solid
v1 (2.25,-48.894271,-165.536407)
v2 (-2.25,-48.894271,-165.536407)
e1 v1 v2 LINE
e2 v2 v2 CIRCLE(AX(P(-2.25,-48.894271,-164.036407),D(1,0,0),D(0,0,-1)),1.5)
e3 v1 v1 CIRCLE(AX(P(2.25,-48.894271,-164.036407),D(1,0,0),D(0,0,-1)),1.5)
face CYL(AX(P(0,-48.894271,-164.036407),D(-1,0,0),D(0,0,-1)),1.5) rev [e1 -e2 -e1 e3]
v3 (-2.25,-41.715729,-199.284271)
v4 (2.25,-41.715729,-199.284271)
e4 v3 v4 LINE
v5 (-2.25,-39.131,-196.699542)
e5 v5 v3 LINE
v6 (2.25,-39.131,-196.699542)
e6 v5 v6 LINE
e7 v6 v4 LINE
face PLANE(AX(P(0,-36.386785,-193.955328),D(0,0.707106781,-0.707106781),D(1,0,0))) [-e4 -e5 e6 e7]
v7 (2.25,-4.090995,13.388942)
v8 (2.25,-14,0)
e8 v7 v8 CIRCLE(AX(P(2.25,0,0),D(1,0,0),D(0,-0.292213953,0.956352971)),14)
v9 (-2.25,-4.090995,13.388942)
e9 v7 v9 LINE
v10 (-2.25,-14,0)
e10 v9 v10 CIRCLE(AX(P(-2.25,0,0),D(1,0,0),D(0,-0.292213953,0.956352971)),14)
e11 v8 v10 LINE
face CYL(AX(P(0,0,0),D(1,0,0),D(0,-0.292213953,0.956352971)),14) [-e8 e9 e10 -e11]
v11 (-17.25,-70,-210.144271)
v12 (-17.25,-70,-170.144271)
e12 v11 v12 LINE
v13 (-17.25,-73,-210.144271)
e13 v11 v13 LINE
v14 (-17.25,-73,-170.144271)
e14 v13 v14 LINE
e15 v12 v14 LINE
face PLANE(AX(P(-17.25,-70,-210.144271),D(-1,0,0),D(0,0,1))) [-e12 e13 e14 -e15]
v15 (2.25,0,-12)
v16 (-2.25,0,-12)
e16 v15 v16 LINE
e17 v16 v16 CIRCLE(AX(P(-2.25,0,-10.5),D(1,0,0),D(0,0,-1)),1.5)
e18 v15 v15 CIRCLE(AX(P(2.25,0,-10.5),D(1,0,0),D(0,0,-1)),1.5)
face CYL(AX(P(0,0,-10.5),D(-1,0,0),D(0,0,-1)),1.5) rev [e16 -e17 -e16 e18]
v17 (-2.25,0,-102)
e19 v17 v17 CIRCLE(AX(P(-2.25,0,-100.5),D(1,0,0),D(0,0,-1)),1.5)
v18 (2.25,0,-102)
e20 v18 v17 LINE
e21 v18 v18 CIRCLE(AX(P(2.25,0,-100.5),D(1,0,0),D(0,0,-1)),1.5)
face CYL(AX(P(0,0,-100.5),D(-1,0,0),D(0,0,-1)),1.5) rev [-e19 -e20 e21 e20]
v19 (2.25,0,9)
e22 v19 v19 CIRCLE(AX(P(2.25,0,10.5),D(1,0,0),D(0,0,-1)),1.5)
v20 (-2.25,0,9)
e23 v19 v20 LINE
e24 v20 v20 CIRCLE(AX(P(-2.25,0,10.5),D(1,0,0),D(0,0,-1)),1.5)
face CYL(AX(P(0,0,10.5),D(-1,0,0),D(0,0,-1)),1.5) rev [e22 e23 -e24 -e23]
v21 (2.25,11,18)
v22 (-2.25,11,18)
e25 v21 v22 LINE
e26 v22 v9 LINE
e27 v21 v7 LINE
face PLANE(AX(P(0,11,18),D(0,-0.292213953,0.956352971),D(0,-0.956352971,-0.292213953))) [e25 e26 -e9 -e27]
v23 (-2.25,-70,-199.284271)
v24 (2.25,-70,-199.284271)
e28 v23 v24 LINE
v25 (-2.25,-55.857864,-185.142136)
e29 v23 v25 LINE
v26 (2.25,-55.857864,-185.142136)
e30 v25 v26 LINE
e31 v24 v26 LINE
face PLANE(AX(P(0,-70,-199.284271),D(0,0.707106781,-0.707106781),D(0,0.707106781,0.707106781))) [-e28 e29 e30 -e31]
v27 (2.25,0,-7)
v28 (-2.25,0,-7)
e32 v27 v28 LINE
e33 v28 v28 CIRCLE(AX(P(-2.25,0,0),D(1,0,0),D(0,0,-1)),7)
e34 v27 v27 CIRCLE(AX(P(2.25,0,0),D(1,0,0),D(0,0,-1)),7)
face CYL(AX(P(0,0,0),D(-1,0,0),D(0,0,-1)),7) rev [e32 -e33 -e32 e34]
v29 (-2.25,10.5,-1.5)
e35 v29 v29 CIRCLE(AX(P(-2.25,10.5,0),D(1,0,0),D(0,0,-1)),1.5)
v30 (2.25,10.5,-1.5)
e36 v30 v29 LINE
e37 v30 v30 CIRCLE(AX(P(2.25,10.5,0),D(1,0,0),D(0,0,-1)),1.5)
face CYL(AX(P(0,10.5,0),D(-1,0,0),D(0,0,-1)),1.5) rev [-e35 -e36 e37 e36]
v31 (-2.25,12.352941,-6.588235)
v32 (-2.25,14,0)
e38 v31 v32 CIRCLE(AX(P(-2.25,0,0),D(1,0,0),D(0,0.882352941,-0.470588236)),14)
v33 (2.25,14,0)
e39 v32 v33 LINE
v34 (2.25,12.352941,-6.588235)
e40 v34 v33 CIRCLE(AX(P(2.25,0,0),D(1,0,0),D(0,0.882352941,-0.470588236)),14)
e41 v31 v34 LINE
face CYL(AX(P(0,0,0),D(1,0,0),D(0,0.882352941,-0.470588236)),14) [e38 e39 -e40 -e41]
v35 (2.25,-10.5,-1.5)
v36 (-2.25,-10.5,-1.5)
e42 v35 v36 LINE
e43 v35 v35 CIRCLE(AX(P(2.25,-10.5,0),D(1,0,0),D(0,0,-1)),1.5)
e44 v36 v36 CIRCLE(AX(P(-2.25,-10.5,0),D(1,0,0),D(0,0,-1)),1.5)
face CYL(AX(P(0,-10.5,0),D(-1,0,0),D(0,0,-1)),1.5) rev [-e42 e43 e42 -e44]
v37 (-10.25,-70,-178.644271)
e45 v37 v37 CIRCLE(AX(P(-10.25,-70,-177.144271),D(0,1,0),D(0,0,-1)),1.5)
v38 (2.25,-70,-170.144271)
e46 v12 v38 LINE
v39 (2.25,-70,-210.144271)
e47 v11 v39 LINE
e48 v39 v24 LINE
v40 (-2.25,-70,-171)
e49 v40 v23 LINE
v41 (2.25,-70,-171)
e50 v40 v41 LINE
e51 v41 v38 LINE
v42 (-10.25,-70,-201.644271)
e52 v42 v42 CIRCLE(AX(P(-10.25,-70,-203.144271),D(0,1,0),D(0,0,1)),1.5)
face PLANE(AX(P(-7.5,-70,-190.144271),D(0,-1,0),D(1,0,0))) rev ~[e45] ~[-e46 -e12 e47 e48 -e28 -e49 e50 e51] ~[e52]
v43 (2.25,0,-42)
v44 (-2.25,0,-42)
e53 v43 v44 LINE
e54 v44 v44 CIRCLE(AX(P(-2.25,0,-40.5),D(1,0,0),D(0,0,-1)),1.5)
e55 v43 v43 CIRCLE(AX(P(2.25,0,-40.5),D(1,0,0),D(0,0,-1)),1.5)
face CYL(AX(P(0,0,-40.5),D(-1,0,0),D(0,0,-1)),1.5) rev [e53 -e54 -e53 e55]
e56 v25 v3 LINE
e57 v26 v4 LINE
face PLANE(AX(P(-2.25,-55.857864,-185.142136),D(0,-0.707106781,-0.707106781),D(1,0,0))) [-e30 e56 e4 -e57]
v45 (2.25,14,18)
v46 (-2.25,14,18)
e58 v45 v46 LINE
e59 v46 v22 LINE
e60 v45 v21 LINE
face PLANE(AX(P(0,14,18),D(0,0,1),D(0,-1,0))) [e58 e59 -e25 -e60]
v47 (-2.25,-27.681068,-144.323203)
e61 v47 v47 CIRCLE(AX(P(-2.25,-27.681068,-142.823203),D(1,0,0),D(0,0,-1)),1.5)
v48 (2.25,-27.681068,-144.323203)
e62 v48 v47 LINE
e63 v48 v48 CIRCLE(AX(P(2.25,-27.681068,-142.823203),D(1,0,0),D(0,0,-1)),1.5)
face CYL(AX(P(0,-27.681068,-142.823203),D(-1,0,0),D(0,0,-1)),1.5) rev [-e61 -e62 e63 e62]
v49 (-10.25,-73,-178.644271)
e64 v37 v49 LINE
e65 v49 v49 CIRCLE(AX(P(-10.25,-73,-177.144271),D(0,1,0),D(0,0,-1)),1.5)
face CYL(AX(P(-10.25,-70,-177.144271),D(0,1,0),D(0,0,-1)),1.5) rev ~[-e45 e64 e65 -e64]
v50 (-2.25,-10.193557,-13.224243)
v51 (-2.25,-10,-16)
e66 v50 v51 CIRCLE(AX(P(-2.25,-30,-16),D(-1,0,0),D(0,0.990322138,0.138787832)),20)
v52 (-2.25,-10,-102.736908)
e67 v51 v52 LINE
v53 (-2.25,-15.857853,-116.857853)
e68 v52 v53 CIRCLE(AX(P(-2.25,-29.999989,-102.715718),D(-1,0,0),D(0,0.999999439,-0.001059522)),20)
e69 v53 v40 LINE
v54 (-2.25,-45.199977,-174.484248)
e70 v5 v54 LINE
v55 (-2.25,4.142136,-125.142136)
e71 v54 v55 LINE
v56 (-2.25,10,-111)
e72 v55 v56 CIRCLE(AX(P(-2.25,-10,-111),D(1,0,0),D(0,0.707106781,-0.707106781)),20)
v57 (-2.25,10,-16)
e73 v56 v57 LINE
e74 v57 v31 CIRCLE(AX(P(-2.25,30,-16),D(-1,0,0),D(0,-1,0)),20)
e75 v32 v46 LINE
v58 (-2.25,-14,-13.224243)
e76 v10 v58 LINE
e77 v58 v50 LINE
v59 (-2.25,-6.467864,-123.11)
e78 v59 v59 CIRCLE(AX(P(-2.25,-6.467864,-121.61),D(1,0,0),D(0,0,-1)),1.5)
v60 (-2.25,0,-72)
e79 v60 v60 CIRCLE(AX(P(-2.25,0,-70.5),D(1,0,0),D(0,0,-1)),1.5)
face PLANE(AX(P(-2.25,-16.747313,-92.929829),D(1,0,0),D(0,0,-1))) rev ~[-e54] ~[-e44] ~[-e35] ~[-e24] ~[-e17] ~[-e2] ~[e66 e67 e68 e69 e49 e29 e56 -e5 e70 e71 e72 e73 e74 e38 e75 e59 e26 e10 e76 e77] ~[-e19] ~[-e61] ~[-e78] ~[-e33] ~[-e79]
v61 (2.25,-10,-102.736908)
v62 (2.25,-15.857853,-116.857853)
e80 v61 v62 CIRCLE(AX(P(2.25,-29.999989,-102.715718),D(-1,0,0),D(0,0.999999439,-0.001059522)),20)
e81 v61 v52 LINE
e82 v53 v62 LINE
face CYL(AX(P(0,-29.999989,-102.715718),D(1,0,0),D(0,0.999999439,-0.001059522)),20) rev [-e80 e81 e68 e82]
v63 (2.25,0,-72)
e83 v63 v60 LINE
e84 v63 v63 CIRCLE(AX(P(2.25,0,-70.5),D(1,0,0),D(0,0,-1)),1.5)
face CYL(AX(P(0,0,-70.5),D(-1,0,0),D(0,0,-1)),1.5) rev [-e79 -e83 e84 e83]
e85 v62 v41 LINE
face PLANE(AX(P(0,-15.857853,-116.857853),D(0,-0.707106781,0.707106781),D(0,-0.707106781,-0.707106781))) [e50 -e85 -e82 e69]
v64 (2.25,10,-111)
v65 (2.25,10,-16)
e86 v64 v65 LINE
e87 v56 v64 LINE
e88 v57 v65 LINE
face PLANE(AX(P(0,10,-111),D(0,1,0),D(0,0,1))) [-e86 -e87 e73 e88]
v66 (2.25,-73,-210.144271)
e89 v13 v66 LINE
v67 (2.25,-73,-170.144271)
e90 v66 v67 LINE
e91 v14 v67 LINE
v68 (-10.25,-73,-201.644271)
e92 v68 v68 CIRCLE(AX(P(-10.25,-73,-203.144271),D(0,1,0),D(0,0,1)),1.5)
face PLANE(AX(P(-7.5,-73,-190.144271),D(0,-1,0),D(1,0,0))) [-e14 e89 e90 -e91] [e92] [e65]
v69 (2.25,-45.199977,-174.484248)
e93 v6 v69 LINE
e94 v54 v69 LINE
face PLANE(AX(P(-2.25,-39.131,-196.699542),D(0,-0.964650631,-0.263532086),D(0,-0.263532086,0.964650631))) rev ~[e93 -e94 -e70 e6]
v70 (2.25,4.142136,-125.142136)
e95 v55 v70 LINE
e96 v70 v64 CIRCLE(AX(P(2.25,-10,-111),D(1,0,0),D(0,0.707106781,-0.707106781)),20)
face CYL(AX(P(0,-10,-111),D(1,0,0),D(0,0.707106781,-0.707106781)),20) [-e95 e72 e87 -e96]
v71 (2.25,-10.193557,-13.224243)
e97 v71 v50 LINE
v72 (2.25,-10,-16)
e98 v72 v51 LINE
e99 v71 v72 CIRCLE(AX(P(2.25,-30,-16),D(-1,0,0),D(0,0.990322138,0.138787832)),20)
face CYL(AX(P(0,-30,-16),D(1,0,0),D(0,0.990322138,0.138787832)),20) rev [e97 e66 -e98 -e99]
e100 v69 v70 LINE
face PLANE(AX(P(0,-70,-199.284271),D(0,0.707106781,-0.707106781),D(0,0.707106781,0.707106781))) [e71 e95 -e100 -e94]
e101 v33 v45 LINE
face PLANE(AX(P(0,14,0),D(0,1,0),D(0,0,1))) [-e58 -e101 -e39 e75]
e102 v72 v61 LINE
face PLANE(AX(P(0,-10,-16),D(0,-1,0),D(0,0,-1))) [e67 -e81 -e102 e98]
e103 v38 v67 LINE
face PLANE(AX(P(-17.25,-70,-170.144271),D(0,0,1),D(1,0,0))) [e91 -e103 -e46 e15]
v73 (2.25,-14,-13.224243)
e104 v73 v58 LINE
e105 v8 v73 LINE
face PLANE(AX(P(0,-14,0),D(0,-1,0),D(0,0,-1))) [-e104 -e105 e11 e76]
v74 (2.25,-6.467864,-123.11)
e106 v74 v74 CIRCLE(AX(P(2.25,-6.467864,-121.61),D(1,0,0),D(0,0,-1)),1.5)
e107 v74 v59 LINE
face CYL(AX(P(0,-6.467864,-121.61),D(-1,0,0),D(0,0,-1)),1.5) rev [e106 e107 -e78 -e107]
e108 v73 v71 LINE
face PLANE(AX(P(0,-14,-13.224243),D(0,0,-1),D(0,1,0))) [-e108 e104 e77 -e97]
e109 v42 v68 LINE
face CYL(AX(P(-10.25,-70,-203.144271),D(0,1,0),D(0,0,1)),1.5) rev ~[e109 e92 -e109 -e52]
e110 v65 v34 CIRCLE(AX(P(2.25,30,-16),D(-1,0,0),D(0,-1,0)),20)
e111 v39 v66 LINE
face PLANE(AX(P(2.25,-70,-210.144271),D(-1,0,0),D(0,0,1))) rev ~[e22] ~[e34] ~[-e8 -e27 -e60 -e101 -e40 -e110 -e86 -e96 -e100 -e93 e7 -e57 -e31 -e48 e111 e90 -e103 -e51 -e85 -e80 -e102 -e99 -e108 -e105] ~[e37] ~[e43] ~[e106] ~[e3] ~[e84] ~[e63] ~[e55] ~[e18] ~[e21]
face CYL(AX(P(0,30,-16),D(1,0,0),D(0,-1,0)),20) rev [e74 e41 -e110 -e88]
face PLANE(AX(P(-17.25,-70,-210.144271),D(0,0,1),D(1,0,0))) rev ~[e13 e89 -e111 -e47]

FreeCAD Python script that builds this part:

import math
import FreeCAD as App
import Part
import Sketcher

V = App.Vector
Q = App.Units.Quantity

doc = App.newDocument("Part")
params = doc.addObject("Spreadsheet::Sheet", "Params")
for row, (alias, value) in enumerate([
    ("sketch1_diameter", "3 mm"),
    ("sketch1_diameter2", "14 mm"),
    ("sketch1_radius", "20 mm"),
    ("sketch1_radius2", "14 mm"),
    ("sketch1_width", "3 mm"),
    ("pad1_length", "4.5 mm"),
    ("sketch2_height", "40 mm"),
    ("sketch2_width", "19.5 mm"),
    ("pad2_length", "3 mm"),
    ("sketch3_diameter", "3 mm"),
    ("sketch4_width", "4.5 mm"),
    ("pad3_length", "20 mm"),
    ("sketch5_length", "20 mm"),
    ("pocket2_length", "10 mm"),
], start=1):
    params.set(f"A{row}", alias)
    params.set(f"B{row}", "=" + value)
    params.setAlias(f"B{row}", alias)

body = doc.addObject("PartDesign::Body", "Body")

sketch1 = body.newObject("Sketcher::SketchObject", "Sketch")
sketch1.AttachmentSupport = (doc.getObject("YZ_Plane"), [""])
sketch1.MapMode = "FlatFace"
sketch1.addGeometry([
    Part.ArcOfCircle(Part.Circle(V(-30, -102.7, 0), V(0, 0, 1), 20), math.radians(-45), math.radians(0)),
    Part.LineSegment(V(-15.9, -116.9, 0), V(-70, -171, 0)),
    Part.LineSegment(V(-70, -171, 0), V(-70, -199.3, 0)),
    Part.LineSegment(V(-70, -199.3, 0), V(4.1, -125.1, 0)),
    Part.ArcOfCircle(Part.Circle(V(-10, -111, 0), V(0, 0, 1), 20), math.radians(-45), math.radians(0)),
    Part.LineSegment(V(10, -111, 0), V(10, -16, 0)),
    Part.ArcOfCircle(Part.Circle(V(30, -16, 0), V(0, 0, 1), 20), math.radians(152), math.radians(180)),
    Part.ArcOfCircle(Part.Circle(V(0, 0, 0), V(0, 0, 1), 14), math.radians(-28), math.radians(0)),
    Part.LineSegment(V(14, 0, 0), V(14, 18, 0)),
    Part.LineSegment(V(14, 18, 0), V(11, 18, 0)),
    Part.LineSegment(V(11, 18, 0), V(-4.1, 13.4, 0)),
    Part.ArcOfCircle(Part.Circle(V(0, 0, 0), V(0, 0, 1), 14), math.radians(107), math.radians(180)),
    Part.LineSegment(V(-14, 0, 0), V(-14, -13.2, 0)),
    Part.LineSegment(V(-14, -13.2, 0), V(-10.2, -13.2, 0)),
    Part.ArcOfCircle(Part.Circle(V(-30, -16, 0), V(0, 0, 1), 20), math.radians(0), math.radians(7.98)),
    Part.LineSegment(V(-10, -16, 0), V(-10, -102.7, 0)),
    Part.Circle(V(-48.9, -164, 0), V(0, 0, 1), 1.5),
    Part.Circle(V(-27.7, -142.8, 0), V(0, 0, 1), 1.5),
    Part.Circle(V(-10.5, 0, 0), V(0, 0, 1), 1.5),
    Part.Circle(V(0, 10.5, 0), V(0, 0, 1), 1.5),
    Part.Circle(V(0, 0, 0), V(0, 0, 1), 7),
    Part.Circle(V(0, -10.5, 0), V(0, 0, 1), 1.5),
    Part.Circle(V(10.5, 0, 0), V(0, 0, 1), 1.5),
    Part.Circle(V(0, -40.5, 0), V(0, 0, 1), 1.5),
    Part.Circle(V(0, -70.5, 0), V(0, 0, 1), 1.5),
    Part.Circle(V(-6.5, -121.6, 0), V(0, 0, 1), 1.5),
    Part.Circle(V(0, -100.5, 0), V(0, 0, 1), 1.5),
], False)
sketch1.addConstraint([
    Sketcher.Constraint("Tangent", 0, 1, 1, 1),
    Sketcher.Constraint("Coincident", 1, 2, 2, 1),
    Sketcher.Constraint("Coincident", 2, 2, 3, 1),
    Sketcher.Constraint("Tangent", 3, 2, 4, 1),
    Sketcher.Constraint("Tangent", 4, 2, 5, 1),
    Sketcher.Constraint("Tangent", 5, 2, 6, 2),
    Sketcher.Constraint("Tangent", 6, 1, 7, 1),
    Sketcher.Constraint("Tangent", 7, 2, 8, 1),
    Sketcher.Constraint("Coincident", 8, 2, 9, 1),
    Sketcher.Constraint("Coincident", 9, 2, 10, 1),
    Sketcher.Constraint("Tangent", 10, 2, 11, 1),
    Sketcher.Constraint("Tangent", 11, 2, 12, 1),
    Sketcher.Constraint("Coincident", 12, 2, 13, 1),
    Sketcher.Constraint("Coincident", 13, 2, 14, 2),
    Sketcher.Constraint("Tangent", 14, 1, 15, 1),
    Sketcher.Constraint("Coincident", 15, 2, 0, 2),
    Sketcher.Constraint("Vertical", 2),
    Sketcher.Constraint("Vertical", 5),
    Sketcher.Constraint("Vertical", 8),
    Sketcher.Constraint("Horizontal", 9),
    Sketcher.Constraint("Vertical", 12),
    Sketcher.Constraint("Horizontal", 13),
    Sketcher.Constraint("Vertical", 15),
    Sketcher.Constraint("Coincident", 7, 3, -1, 1),
    Sketcher.Constraint("Coincident", 11, 3, -1, 1),
    Sketcher.Constraint("Coincident", 20, 3, -1, 1),
    Sketcher.Constraint("Equal", 0, 4),
    Sketcher.Constraint("Equal", 4, 6),
    Sketcher.Constraint("Equal", 7, 11),
    Sketcher.Constraint("Equal", 6, 14),
    Sketcher.Constraint("Equal", 16, 17),
    Sketcher.Constraint("Equal", 17, 18),
    Sketcher.Constraint("Equal", 18, 19),
    Sketcher.Constraint("Equal", 19, 21),
    Sketcher.Constraint("Equal", 21, 22),
    Sketcher.Constraint("Equal", 22, 23),
    Sketcher.Constraint("Equal", 23, 24),
    Sketcher.Constraint("Equal", 24, 25),
    Sketcher.Constraint("Equal", 25, 26),
    Sketcher.Constraint("Symmetric", 19, 3, 21, 3, -1, 1),
    Sketcher.Constraint("Symmetric", 18, 3, 22, 3, -1, 1),
    Sketcher.Constraint("Symmetric", 6, 3, 14, 3, -2),
    Sketcher.Constraint("PointOnObject", 18, 3, -1),
    Sketcher.Constraint("PointOnObject", 19, 3, -2),
    Sketcher.Constraint("PointOnObject", 23, 3, -2),
    Sketcher.Constraint("PointOnObject", 24, 3, -2),
    Sketcher.Constraint("PointOnObject", 26, 3, -2),
    Sketcher.Constraint("Parallel", 1, 3),
    Sketcher.Constraint("Vertical", 4, 3, 14, 1),
    Sketcher.Constraint("Diameter", 16, 3.0),
    Sketcher.Constraint("Diameter", 20, 14.0),
    Sketcher.Constraint("Radius", 0, 20.0),
    Sketcher.Constraint("Radius", 7, 14.0),
    Sketcher.Constraint("DistanceX", 9, 2, 9, 1, 3.0),
    Sketcher.Constraint("DistanceY", 5, 1, 5, 2, 95.0),
    Sketcher.Constraint("DistanceY", 8, 1, 8, 2, 18.0),
    Sketcher.Constraint("Angle", 1, Q("-135 deg")),
    Sketcher.Constraint("DistanceX", 1, 2, -1, 1, 70.0),
    Sketcher.Constraint("DistanceY", 1, 2, -1, 1, 171.0),
    Sketcher.Constraint("DistanceY", 21, 3, 19, 3, 21.0),
    Sketcher.Constraint("DistanceY", 23, 3, 21, 3, 30.0),
    Sketcher.Constraint("DistanceY", 24, 3, 23, 3, 30.0),
    Sketcher.Constraint("DistanceY", 26, 3, 24, 3, 30.0),
    Sketcher.Constraint("DistanceX", 18, 3, -1, 1, 10.5),
    Sketcher.Constraint("DistanceY", 25, 3, -1, 1, 121.61),
    Sketcher.Constraint("DistanceX", 25, 3, 3, 2, 10.61),
    Sketcher.Constraint("DistanceX", 13, 1, 13, 2, 3.806443),
    Sketcher.Constraint("DistanceY", 15, 2, 15, 1, 86.736908),
    Sketcher.Constraint("DistanceX", 16, 3, -1, 1, 48.894271),
    Sketcher.Constraint("DistanceY", 16, 3, 0, 3, 61.320689),
    Sketcher.Constraint("DistanceX", 0, 3, 17, 3, 2.318921),
    Sketcher.Constraint("DistanceY", 17, 3, 0, 1, 25.96535),
])
sketch1.setExpression("Constraints[49]", "Params.sketch1_diameter")
sketch1.setExpression("Constraints[50]", "Params.sketch1_diameter2")
sketch1.setExpression("Constraints[51]", "Params.sketch1_radius")
sketch1.setExpression("Constraints[52]", "Params.sketch1_radius2")
sketch1.setExpression("Constraints[53]", "Params.sketch1_width")
pad1 = body.newObject("PartDesign::Pad", "Pad")
pad1.Profile = sketch1
pad1.setExpression("Length", "Params.pad1_length")
pad1.Midplane = True

sketch2 = body.newObject("Sketcher::SketchObject", "Sketch001")
sketch2.AttachmentSupport = (doc.getObject("XZ_Plane"), [""])
sketch2.MapMode = "FlatFace"
sketch2.AttachmentOffset = App.Placement(V(0, 0, 70), App.Rotation())
sketch2.addGeometry([
    Part.LineSegment(V(-17, -170, 0), V(-17, -210, 0)),
    Part.LineSegment(V(-17, -210, 0), V(2, -210, 0)),
    Part.LineSegment(V(2, -210, 0), V(2, -170, 0)),
    Part.LineSegment(V(2, -170, 0), V(-17, -170, 0)),
], False)
sketch2.addConstraint([
    Sketcher.Constraint("Coincident", 0, 2, 1, 1),
    Sketcher.Constraint("Coincident", 1, 2, 2, 1),
    Sketcher.Constraint("Coincident", 2, 2, 3, 1),
    Sketcher.Constraint("Coincident", 3, 2, 0, 1),
    Sketcher.Constraint("Vertical", 0),
    Sketcher.Constraint("Horizontal", 1),
    Sketcher.Constraint("Vertical", 2),
    Sketcher.Constraint("Horizontal", 3),
    Sketcher.Constraint("DistanceY", 0, 2, 0, 1, 40.0),
    Sketcher.Constraint("DistanceX", 1, 1, 1, 2, 19.5),
    Sketcher.Constraint("DistanceX", 0, 2, -1, 1, 17.25),
    Sketcher.Constraint("DistanceY", 0, 2, -1, 1, 210.144271),
])
sketch2.setExpression("Constraints[8]", "Params.sketch2_height")
sketch2.setExpression("Constraints[9]", "Params.sketch2_width")
pad2 = body.newObject("PartDesign::Pad", "Pad001")
pad2.Profile = sketch2
pad2.setExpression("Length", "Params.pad2_length")

sketch3 = body.newObject("Sketcher::SketchObject", "Sketch002")
sketch3.AttachmentSupport = (doc.getObject("XZ_Plane"), [""])
sketch3.MapMode = "FlatFace"
sketch3.AttachmentOffset = App.Placement(V(0, 0, 70), App.Rotation())
sketch3.addGeometry([
    Part.Circle(V(-10.2, -203.1, 0), V(0, 0, 1), 1.5),
    Part.Circle(V(-10.2, -177.1, 0), V(0, 0, 1), 1.5),
], False)
sketch3.addConstraint([
    Sketcher.Constraint("Equal", 0, 1),
    Sketcher.Constraint("Vertical", 0, 3, 1, 3),
    Sketcher.Constraint("Diameter", 0, 3.0),
    Sketcher.Constraint("DistanceY", 0, 3, 1, 3, 26.0),
    Sketcher.Constraint("DistanceX", 0, 3, -1, 1, 10.25),
    Sketcher.Constraint("DistanceY", 0, 3, -1, 1, 203.144271),
])
sketch3.setExpression("Constraints[2]", "Params.sketch3_diameter")
pocket1 = body.newObject("PartDesign::Pocket", "Pocket")
pocket1.Profile = sketch3
pocket1.Type = "ThroughAll"
pocket1.Reversed = True

sketch4 = body.newObject("Sketcher::SketchObject", "Sketch003")
sketch4.Placement = App.Placement(V(0, 64.642136, -64.642136), App.Rotation(V(1, 0, 0), V(0, -0.707106781, -0.707106781), V(0, 0.707106781, -0.707106781), "ZXY"))
sketch4.addGeometry([
    Part.LineSegment(V(-2.2, 170.4, 0), V(-2.2, 155.3, 0)),
    Part.LineSegment(V(-2.2, 155.3, 0), V(2.2, 155.3, 0)),
    Part.LineSegment(V(2.2, 155.3, 0), V(2.2, 170.4, 0)),
    Part.LineSegment(V(2.2, 170.4, 0), V(-2.2, 170.4, 0)),
], False)
sketch4.addConstraint([
    Sketcher.Constraint("Coincident", 0, 2, 1, 1),
    Sketcher.Constraint("Coincident", 1, 2, 2, 1),
    Sketcher.Constraint("Coincident", 2, 2, 3, 1),
    Sketcher.Constraint("Coincident", 3, 2, 0, 1),
    Sketcher.Constraint("Vertical", 0),
    Sketcher.Constraint("Horizontal", 1),
    Sketcher.Constraint("Vertical", 2),
    Sketcher.Constraint("Horizontal", 3),
    Sketcher.Constraint("DistanceX", 1, 1, 1, 2, 4.5),
    Sketcher.Constraint("DistanceX", 0, 2, -1, 1, 2.25),
    Sketcher.Constraint("DistanceY", 0, 2, 0, 1, 15.072529),
    Sketcher.Constraint("DistanceY", -1, 1, 0, 2, 155.340205),
])
sketch4.setExpression("Constraints[8]", "Params.sketch4_width")
pad3 = body.newObject("PartDesign::Pad", "Pad002")
pad3.Profile = sketch4
pad3.setExpression("Length", "Params.pad3_length")

sketch5 = body.newObject("Sketcher::SketchObject", "Sketch004")
sketch5.AttachmentSupport = (doc.getObject("YZ_Plane"), [""])
sketch5.MapMode = "FlatFace"
sketch5.AttachmentOffset = App.Placement(V(0, 0, -2.25), App.Rotation())
sketch5.addGeometry([
    Part.LineSegment(V(-39, -197, 0), V(-45, -174, 0)),
    Part.LineSegment(V(-45, -174, 0), V(-31, -189, 0)),
    Part.LineSegment(V(-31, -189, 0), V(-39, -197, 0)),
], False)
sketch5.addConstraint([
    Sketcher.Constraint("Coincident", 0, 2, 1, 1),
    Sketcher.Constraint("Coincident", 1, 2, 2, 1),
    Sketcher.Constraint("Coincident", 2, 2, 0, 1),
    Sketcher.Constraint("Perpendicular", 1, 2),
    Sketcher.Constraint("Angle", 1, Q("-45 deg")),
    Sketcher.Constraint("Distance", 1, 20.0),
    Sketcher.Constraint("DistanceX", 2, 2, -1, 1, 39.131),
    Sketcher.Constraint("Distance", 2, 11.41717),
    Sketcher.Constraint("DistanceY", 0, 2, -1, 1, 174.484248),
])
sketch5.setExpression("Constraints[5]", "Params.sketch5_length")
pocket2 = body.newObject("PartDesign::Pocket", "Pocket001")
pocket2.Profile = sketch5
pocket2.setExpression("Length", "Params.pocket2_length")
pocket2.Reversed = True

doc.recompute()
